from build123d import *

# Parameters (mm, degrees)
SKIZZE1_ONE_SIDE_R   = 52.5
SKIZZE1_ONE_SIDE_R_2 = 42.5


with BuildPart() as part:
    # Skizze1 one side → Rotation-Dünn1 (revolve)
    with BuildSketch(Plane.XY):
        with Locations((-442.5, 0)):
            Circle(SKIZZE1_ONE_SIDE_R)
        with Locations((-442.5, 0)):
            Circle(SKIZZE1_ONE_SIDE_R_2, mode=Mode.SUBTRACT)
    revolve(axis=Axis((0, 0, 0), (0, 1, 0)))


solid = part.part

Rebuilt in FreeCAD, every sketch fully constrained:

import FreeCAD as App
import Part
import Sketcher

doc = App.newDocument("Part")
params = doc.addObject("Spreadsheet::Sheet", "Params")
for row, (alias, value) in enumerate([
    ("sketch1_diameter", "105 mm"),
    ("sketch1_diameter2", "85 mm"),
    ("revolution_angle", "360 deg"),
], start=1):
    params.set(f"A{row}", alias)
    params.set(f"B{row}", "=" + value)
    params.setAlias(f"B{row}", alias)

body = doc.addObject("PartDesign::Body", "Body")

sketch1 = body.newObject("Sketcher::SketchObject", "Sketch")
sketch1.AttachmentSupport = (doc.getObject("XY_Plane"), [""])
sketch1.MapMode = "FlatFace"
sketch1.addGeometry([
    Part.Circle(App.Vector(-442, 0, 0), App.Vector(0, 0, 1), 52),
    Part.Circle(App.Vector(-442, 0, 0), App.Vector(0, 0, 1), 42),
], False)
sketch1.addConstraint([
    Sketcher.Constraint("Coincident", 1, 3, 0, 3),
    Sketcher.Constraint("PointOnObject", 0, 3, -1),
    Sketcher.Constraint("Diameter", 0, 105.0),
    Sketcher.Constraint("Diameter", 1, 85.0),
    Sketcher.Constraint("DistanceX", 0, 3, -1, 1, 442.5),
])
sketch1.setExpression("Constraints[2]", "Params.sketch1_diameter")
sketch1.setExpression("Constraints[3]", "Params.sketch1_diameter2")
revolution = body.newObject("PartDesign::Revolution", "Revolution")
revolution.Profile = sketch1
revolution.ReferenceAxis = (sketch1, ["V_Axis"])
revolution.setExpression("Angle", "Params.revolution_angle")

doc.recompute()
